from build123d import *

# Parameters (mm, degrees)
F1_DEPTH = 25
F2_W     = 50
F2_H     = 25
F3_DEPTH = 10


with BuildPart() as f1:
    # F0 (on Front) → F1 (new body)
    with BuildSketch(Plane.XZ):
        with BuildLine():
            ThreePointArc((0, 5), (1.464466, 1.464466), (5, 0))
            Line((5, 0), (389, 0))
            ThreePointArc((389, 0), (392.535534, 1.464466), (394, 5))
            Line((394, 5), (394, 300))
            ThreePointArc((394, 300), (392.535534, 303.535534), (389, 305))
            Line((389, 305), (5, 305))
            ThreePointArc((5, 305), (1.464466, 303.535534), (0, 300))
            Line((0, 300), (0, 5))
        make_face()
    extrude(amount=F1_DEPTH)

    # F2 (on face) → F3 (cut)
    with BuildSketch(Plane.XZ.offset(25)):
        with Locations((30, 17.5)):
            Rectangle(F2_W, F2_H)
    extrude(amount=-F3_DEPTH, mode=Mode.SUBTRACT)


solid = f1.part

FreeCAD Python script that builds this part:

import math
import FreeCAD as App
import Part
import Sketcher
from FreeCAD import Vector
Q = App.Units.Quantity

doc = App.newDocument("Part")
body = doc.addObject("PartDesign::Body", "Body")

# Sketch on XZ plane
sketch1 = doc.addObject("Sketcher::SketchObject", "Sketch")
body.addObject(sketch1)
sketch1.AttachmentSupport = (doc.XZ_Plane, [""])
sketch1.MapMode = "FlatFace"
sketch1.addGeometry(Part.ArcOfCircle(Part.Circle(Vector(5, 5, 0), Vector(0, 0, 1), 5), math.radians(179.999996), math.radians(270.000004)), False)
sketch1.addGeometry(Part.LineSegment(Vector(5, 0, 0), Vector(389, 0, 0)), False)
sketch1.addGeometry(Part.ArcOfCircle(Part.Circle(Vector(389, 5, 0), Vector(0, 0, 1), 5), math.radians(-90.000004), math.radians(0.000004)), False)
sketch1.addGeometry(Part.LineSegment(Vector(394, 5, 0), Vector(394, 300, 0)), False)
sketch1.addGeometry(Part.ArcOfCircle(Part.Circle(Vector(389, 300, 0), Vector(0, 0, 1), 5), math.radians(-0.000004), math.radians(90.000004)), False)
sketch1.addGeometry(Part.LineSegment(Vector(389, 305, 0), Vector(5, 305, 0)), False)
sketch1.addGeometry(Part.ArcOfCircle(Part.Circle(Vector(5, 300, 0), Vector(0, 0, 1), 5), math.radians(89.999996), math.radians(180.000004)), False)
sketch1.addGeometry(Part.LineSegment(Vector(0, 300, 0), Vector(0, 5, 0)), False)
sketch1.addConstraint(Sketcher.Constraint("Tangent", 0, 2, 1, 1))
sketch1.addConstraint(Sketcher.Constraint("Tangent", 1, 2, 2, 1))
sketch1.addConstraint(Sketcher.Constraint("Tangent", 2, 2, 3, 1))
sketch1.addConstraint(Sketcher.Constraint("Tangent", 3, 2, 4, 1))
sketch1.addConstraint(Sketcher.Constraint("Tangent", 4, 2, 5, 1))
sketch1.addConstraint(Sketcher.Constraint("Tangent", 5, 2, 6, 1))
sketch1.addConstraint(Sketcher.Constraint("Tangent", 6, 2, 7, 1))
sketch1.addConstraint(Sketcher.Constraint("Tangent", 7, 2, 0, 1))
sketch1.addConstraint(Sketcher.Constraint("Horizontal", 1))
sketch1.addConstraint(Sketcher.Constraint("Vertical", 3))
sketch1.addConstraint(Sketcher.Constraint("Horizontal", 5))
sketch1.addConstraint(Sketcher.Constraint("Vertical", 7))
sketch1.addConstraint(Sketcher.Constraint("Equal", 0, 2))
sketch1.addConstraint(Sketcher.Constraint("Equal", 2, 4))
sketch1.addConstraint(Sketcher.Constraint("Equal", 4, 6))
sketch1.addConstraint(Sketcher.Constraint("PointOnObject", 0, 2, -1))
sketch1.addConstraint(Sketcher.Constraint("PointOnObject", 6, 2, -2))
sketch1.addConstraint(Sketcher.Constraint("Radius", 0, Q("5 mm")))
sketch1.addConstraint(Sketcher.Constraint("DistanceX", 1, 1, 1, 2, Q("384 mm")))
sketch1.addConstraint(Sketcher.Constraint("DistanceY", 3, 1, 3, 2, Q("295 mm")))
pad1 = doc.addObject("PartDesign::Pad", "Pad")
body.addObject(pad1)
pad1.Profile = sketch1
pad1.Length = 25

# Sketch on XZ plane
sketch2 = doc.addObject("Sketcher::SketchObject", "Sketch001")
body.addObject(sketch2)
sketch2.AttachmentSupport = (doc.XZ_Plane, [""])
sketch2.MapMode = "FlatFace"
sketch2.AttachmentOffset = App.Placement(Vector(0, 0, 25), App.Rotation())
sketch2.addGeometry(Part.LineSegment(Vector(5, 30, 0), Vector(5, 5, 0)), False)
sketch2.addGeometry(Part.LineSegment(Vector(5, 5, 0), Vector(55, 5, 0)), False)
sketch2.addGeometry(Part.LineSegment(Vector(55, 5, 0), Vector(55, 30, 0)), False)
sketch2.addGeometry(Part.LineSegment(Vector(55, 30, 0), Vector(5, 30, 0)), False)
sketch2.addConstraint(Sketcher.Constraint("Coincident", 0, 2, 1, 1))
sketch2.addConstraint(Sketcher.Constraint("Coincident", 1, 2, 2, 1))
sketch2.addConstraint(Sketcher.Constraint("Coincident", 2, 2, 3, 1))
sketch2.addConstraint(Sketcher.Constraint("Coincident", 3, 2, 0, 1))
sketch2.addConstraint(Sketcher.Constraint("Vertical", 0))
sketch2.addConstraint(Sketcher.Constraint("Horizontal", 1))
sketch2.addConstraint(Sketcher.Constraint("Vertical", 2))
sketch2.addConstraint(Sketcher.Constraint("Horizontal", 3))
sketch2.addConstraint(Sketcher.Constraint("DistanceX", 1, 1, 1, 2, Q("50 mm")))
sketch2.addConstraint(Sketcher.Constraint("DistanceY", 0, 2, 0, 1, Q("25 mm")))
sketch2.addConstraint(Sketcher.Constraint("DistanceX", -1, 1, 0, 2, Q("5 mm")))
sketch2.addConstraint(Sketcher.Constraint("DistanceY", -1, 1, 0, 2, Q("5 mm")))
pocket1 = doc.addObject("PartDesign::Pocket", "Pocket")
body.addObject(pocket1)
pocket1.Profile = sketch2
pocket1.Length = 10

doc.recompute()
